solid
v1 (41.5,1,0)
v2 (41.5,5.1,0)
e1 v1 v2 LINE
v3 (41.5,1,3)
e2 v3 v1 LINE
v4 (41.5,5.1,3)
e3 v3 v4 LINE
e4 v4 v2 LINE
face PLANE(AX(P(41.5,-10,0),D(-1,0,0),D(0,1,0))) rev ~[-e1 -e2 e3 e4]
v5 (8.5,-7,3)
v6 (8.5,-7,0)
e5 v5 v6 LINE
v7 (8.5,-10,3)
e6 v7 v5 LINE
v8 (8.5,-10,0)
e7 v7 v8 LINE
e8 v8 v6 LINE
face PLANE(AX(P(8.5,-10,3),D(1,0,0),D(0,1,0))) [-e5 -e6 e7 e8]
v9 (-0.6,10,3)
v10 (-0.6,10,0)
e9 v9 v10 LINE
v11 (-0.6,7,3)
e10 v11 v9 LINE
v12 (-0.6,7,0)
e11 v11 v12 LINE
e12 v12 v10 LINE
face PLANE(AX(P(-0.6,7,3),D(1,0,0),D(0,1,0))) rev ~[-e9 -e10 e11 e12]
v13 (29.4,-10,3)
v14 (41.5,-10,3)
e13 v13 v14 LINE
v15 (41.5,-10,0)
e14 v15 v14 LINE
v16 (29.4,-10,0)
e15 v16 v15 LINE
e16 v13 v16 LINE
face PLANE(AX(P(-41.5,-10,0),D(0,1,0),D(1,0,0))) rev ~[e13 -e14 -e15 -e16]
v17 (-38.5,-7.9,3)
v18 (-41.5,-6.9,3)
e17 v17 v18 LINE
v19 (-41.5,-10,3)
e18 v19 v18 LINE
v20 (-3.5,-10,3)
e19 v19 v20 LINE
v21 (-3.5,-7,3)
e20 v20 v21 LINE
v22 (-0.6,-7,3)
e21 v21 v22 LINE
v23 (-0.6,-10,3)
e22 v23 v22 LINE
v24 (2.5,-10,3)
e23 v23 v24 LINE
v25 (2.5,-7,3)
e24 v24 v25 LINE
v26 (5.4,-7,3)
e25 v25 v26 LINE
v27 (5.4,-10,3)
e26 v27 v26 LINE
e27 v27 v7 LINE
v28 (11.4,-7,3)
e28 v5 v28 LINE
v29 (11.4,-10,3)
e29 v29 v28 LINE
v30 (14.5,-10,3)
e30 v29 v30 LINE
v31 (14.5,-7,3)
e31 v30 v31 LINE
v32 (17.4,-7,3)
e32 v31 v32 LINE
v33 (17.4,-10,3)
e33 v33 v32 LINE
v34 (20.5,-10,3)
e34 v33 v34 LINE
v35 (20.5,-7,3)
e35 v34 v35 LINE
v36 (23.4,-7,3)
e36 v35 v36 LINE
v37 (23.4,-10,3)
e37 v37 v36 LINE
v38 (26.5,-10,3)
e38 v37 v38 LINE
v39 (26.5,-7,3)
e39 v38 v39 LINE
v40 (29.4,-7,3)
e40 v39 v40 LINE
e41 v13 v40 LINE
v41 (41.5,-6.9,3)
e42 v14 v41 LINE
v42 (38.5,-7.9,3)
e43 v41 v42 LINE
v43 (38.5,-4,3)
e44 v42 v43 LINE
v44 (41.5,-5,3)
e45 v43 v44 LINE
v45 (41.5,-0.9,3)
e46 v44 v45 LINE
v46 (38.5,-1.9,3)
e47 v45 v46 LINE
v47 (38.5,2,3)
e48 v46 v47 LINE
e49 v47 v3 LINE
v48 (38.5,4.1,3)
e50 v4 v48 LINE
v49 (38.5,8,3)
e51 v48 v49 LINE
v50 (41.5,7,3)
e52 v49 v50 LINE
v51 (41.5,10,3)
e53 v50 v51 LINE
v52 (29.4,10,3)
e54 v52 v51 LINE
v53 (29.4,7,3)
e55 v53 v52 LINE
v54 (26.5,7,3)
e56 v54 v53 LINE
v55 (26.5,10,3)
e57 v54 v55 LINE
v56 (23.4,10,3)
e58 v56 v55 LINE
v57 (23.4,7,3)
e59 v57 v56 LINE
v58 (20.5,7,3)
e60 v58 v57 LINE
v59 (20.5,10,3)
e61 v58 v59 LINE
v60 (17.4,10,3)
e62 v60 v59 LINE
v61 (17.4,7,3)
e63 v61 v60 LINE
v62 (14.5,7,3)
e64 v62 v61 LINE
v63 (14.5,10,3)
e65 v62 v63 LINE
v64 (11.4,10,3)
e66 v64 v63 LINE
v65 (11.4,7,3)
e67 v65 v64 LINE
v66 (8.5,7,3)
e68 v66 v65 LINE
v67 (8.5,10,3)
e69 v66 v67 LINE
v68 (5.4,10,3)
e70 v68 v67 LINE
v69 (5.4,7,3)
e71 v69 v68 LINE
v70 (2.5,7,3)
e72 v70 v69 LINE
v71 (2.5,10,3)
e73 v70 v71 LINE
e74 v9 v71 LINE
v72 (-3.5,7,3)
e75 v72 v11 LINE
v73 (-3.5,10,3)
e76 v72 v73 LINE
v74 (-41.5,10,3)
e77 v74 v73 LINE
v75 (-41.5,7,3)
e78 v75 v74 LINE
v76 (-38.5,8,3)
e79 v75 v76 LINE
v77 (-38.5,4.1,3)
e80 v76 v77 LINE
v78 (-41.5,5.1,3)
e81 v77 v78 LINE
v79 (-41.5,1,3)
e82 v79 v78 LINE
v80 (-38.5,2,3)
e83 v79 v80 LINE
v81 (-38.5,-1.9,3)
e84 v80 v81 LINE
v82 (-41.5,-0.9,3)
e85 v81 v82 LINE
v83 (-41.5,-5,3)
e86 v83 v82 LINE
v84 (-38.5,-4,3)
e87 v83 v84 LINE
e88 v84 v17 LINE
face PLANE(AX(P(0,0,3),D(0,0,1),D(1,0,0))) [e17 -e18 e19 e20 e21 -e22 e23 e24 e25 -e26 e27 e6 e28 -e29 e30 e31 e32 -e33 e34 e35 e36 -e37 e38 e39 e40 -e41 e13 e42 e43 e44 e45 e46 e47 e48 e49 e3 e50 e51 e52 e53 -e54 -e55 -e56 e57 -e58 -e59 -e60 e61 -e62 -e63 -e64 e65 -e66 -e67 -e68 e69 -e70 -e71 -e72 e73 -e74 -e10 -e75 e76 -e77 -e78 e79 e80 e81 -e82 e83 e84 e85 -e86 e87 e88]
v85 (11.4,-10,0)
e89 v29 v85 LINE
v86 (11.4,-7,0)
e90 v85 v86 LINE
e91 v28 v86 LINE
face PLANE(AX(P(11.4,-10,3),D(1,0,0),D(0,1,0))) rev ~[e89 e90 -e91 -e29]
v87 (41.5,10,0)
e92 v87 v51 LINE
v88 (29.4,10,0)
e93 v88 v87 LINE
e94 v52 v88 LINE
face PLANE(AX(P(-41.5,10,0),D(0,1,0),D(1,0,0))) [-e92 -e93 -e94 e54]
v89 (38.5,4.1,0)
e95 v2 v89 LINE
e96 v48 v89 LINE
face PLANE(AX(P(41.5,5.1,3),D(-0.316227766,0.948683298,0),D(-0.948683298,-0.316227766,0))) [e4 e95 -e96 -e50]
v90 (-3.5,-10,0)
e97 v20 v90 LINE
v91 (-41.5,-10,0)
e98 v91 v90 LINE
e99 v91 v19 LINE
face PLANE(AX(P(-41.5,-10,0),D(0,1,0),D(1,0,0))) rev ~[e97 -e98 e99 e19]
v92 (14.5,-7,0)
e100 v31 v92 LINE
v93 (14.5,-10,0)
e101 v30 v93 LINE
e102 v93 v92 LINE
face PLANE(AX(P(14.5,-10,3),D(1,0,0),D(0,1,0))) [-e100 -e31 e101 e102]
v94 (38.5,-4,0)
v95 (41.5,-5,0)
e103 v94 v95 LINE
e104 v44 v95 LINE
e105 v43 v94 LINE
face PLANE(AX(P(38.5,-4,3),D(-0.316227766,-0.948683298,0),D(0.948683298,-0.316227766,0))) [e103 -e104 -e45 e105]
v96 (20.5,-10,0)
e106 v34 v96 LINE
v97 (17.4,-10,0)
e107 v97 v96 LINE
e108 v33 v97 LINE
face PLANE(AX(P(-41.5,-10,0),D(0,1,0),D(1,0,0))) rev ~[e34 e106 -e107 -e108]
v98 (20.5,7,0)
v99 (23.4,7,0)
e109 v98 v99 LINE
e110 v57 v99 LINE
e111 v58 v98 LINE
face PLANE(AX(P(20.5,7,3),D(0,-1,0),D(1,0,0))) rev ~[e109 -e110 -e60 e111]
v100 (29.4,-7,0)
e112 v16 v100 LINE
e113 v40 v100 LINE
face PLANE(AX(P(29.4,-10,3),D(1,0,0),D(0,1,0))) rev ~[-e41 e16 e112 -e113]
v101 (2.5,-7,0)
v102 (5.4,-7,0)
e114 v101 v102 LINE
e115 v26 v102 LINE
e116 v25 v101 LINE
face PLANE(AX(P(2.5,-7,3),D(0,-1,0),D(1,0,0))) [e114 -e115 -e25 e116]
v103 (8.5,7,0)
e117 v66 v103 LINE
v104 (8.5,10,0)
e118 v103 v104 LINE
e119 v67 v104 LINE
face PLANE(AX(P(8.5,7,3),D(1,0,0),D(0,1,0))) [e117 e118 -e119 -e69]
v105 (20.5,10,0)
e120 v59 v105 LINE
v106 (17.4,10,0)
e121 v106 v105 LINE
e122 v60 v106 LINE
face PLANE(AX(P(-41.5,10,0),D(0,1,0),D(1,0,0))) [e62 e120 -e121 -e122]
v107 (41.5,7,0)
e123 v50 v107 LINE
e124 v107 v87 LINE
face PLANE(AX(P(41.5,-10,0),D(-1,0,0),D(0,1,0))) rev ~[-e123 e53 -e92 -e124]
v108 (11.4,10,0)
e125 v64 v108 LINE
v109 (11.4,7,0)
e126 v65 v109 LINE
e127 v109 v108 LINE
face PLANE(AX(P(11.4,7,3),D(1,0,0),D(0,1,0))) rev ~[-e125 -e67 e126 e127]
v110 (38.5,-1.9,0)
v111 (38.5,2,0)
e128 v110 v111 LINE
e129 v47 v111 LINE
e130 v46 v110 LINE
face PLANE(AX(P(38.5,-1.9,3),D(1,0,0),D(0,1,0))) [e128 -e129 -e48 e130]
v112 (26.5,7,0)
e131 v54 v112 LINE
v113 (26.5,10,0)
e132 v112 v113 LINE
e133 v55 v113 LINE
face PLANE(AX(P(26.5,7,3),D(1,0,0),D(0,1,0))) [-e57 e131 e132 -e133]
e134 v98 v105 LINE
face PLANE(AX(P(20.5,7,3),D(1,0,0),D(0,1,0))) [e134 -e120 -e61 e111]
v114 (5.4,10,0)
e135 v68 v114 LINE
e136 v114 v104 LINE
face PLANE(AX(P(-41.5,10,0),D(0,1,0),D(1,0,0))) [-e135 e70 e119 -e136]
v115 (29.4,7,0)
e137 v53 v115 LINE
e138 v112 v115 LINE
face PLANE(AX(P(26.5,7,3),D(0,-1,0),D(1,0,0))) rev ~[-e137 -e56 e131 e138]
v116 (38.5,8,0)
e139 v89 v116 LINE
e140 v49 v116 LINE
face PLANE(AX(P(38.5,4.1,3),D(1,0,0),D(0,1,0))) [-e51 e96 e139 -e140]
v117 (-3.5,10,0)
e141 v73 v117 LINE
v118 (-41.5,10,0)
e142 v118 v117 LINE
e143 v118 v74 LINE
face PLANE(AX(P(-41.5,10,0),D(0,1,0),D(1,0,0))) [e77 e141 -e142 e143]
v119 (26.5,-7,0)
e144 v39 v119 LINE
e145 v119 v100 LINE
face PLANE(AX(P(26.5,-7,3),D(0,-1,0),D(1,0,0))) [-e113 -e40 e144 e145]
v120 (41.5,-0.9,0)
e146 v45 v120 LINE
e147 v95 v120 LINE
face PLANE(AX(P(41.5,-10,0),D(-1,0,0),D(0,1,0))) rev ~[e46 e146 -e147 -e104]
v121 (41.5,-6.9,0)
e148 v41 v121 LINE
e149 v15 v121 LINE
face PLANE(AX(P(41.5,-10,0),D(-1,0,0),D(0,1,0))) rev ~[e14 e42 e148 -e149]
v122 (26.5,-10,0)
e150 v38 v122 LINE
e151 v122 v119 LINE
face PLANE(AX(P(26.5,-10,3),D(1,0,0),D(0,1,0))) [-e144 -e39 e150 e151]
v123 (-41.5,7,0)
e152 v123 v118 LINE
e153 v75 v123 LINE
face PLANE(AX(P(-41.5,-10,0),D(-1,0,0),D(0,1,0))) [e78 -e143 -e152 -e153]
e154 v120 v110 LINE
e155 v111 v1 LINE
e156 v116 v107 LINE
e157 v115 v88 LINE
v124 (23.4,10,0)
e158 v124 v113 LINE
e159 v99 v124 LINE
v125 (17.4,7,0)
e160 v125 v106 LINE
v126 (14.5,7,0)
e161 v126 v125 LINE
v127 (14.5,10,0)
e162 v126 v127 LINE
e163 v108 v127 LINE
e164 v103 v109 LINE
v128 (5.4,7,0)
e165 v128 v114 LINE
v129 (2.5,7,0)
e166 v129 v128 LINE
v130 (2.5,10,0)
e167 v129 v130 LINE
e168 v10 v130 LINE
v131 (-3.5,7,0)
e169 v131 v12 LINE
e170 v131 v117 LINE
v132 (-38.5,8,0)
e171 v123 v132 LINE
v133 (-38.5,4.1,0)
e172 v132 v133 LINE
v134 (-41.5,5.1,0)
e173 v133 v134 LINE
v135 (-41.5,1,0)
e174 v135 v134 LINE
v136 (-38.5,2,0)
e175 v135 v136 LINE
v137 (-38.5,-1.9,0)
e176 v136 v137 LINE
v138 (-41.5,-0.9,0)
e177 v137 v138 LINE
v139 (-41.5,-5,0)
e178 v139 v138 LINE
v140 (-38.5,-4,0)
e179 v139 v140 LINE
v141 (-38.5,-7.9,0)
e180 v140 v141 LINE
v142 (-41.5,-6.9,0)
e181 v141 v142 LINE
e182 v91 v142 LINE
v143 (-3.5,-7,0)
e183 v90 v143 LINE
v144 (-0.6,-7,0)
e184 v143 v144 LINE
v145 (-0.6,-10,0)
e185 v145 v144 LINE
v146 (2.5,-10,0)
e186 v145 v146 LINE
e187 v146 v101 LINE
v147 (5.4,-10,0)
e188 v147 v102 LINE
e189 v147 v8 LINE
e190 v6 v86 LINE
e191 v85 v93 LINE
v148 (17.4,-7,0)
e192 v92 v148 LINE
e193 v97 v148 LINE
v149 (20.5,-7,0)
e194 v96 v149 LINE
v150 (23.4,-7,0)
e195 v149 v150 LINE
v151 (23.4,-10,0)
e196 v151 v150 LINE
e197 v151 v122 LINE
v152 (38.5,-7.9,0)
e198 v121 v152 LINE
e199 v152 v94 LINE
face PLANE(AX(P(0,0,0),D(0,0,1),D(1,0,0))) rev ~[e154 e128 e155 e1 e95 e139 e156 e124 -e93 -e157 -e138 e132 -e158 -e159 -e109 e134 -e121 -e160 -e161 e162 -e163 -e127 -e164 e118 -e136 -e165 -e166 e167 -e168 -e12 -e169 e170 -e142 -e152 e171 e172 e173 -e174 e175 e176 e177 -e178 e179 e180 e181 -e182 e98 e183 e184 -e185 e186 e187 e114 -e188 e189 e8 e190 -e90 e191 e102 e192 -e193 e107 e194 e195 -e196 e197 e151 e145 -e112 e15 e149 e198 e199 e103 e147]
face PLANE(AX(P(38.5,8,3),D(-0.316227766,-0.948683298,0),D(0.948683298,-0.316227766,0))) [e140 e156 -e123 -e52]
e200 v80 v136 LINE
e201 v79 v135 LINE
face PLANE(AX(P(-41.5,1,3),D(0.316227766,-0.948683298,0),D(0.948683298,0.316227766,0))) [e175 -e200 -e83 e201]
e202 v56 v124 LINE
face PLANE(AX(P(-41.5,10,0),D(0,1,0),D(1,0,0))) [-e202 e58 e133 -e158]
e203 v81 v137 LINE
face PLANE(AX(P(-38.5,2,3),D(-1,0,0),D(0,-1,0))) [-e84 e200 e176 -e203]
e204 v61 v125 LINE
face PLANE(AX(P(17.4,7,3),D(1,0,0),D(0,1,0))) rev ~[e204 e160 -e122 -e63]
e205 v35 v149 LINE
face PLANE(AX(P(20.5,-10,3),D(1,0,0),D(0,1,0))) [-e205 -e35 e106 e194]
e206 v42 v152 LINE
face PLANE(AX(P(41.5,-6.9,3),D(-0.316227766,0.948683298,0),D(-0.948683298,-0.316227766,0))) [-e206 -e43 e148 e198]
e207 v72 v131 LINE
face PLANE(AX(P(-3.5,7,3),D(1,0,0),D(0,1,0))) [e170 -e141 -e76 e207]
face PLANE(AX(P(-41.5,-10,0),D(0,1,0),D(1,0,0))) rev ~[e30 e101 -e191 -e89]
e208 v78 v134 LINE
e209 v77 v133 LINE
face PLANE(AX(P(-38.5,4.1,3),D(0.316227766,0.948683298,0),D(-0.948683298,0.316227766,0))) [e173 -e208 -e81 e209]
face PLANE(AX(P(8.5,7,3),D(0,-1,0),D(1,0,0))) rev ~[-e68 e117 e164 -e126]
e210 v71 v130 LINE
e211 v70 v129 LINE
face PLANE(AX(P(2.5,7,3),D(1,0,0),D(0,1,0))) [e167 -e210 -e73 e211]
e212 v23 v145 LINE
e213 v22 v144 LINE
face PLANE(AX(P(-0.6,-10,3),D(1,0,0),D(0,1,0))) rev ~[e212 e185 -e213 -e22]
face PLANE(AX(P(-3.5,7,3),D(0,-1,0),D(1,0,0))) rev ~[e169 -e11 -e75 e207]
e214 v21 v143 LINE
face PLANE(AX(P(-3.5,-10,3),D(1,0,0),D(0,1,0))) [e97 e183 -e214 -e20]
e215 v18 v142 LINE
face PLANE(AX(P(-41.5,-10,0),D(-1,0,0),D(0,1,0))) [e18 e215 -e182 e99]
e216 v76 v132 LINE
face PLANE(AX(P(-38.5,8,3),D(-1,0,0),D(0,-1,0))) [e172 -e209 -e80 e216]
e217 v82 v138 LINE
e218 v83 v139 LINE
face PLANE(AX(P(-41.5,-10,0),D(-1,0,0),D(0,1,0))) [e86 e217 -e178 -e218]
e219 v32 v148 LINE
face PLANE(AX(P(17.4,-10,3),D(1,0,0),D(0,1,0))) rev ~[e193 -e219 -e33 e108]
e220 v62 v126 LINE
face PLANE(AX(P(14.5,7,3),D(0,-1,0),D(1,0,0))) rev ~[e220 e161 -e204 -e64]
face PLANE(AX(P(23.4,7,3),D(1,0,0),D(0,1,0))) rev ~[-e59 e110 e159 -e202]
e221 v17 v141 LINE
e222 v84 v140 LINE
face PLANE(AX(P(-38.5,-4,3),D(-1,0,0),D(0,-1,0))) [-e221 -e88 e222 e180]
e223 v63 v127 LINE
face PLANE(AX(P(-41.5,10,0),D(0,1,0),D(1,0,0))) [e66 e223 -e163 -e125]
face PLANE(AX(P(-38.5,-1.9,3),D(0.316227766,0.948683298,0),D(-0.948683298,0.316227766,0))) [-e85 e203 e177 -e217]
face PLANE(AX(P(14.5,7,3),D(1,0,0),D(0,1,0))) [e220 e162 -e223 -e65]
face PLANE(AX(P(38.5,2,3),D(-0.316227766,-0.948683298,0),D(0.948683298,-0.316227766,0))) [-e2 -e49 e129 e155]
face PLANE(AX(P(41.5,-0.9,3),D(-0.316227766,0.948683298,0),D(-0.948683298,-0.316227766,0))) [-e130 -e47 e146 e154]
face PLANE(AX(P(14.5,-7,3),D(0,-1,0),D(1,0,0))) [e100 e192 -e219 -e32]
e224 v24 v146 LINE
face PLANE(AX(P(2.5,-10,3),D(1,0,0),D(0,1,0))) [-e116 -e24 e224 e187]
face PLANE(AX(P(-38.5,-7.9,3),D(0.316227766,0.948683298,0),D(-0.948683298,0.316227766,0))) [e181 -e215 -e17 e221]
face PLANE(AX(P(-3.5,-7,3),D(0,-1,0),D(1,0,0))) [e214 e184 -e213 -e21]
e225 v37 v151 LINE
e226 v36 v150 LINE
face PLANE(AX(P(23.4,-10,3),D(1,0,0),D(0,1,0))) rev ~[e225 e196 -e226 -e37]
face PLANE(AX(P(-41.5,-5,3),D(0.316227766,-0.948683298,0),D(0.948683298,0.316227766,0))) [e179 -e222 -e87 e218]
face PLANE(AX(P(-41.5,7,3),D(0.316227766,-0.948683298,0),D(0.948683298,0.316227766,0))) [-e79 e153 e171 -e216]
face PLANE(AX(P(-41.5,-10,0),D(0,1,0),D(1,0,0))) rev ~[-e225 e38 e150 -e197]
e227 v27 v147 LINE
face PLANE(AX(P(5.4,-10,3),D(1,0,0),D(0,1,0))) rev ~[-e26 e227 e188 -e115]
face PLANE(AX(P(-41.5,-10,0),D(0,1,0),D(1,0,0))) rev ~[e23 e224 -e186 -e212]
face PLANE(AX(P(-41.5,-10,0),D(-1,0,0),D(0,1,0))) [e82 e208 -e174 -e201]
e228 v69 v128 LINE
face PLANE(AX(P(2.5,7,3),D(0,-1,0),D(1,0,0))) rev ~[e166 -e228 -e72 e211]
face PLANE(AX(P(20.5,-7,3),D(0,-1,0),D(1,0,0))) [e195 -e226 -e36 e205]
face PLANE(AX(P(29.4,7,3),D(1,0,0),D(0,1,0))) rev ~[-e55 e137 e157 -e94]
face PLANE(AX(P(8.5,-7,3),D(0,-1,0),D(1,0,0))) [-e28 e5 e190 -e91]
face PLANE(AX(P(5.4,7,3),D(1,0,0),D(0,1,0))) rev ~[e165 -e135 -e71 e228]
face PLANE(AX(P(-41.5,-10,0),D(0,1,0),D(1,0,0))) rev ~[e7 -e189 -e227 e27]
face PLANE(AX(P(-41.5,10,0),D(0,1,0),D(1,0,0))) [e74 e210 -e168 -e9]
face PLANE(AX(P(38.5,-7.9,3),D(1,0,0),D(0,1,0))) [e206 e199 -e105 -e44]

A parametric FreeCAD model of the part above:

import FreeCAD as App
import Part
import Sketcher

V = App.Vector
Q = App.Units.Quantity


def add_polygon(sketch, points):
    """Adds a closed chain of lines whose ends are joined by coincident constraints."""
    first, n = sketch.GeometryCount, len(points)
    for a, b in zip(points, points[1:] + points[:1]):
        sketch.addGeometry(Part.LineSegment(App.Vector(*a, 0), App.Vector(*b, 0)), False)
    for i in range(n):
        sketch.addConstraint(Sketcher.Constraint("Coincident", first + i, 2, first + (i + 1) % n, 1))

doc = App.newDocument("Part")
body = doc.addObject("PartDesign::Body", "Body")

sketch1 = body.newObject("Sketcher::SketchObject", "Sketch")
sketch1.AttachmentSupport = (doc.getObject("XY_Plane"), [""])
sketch1.MapMode = "FlatFace"
add_polygon(sketch1, [(-41.5, 10), (-41.5, -10), (41.5, -10), (41.5, 10)])
sketch1.addConstraint([
    Sketcher.Constraint("Vertical", 0),
    Sketcher.Constraint("Horizontal", 1),
    Sketcher.Constraint("Vertical", 2),
    Sketcher.Constraint("Horizontal", 3),
    Sketcher.Constraint("Symmetric", 0, 2, 2, 2, -1, 1),
    Sketcher.Constraint("DistanceX", 1, 1, 1, 2, Q("83 mm")),
    Sketcher.Constraint("DistanceY", 0, 2, 0, 1, Q("20 mm")),
])
pad1 = body.newObject("PartDesign::Pad", "Pad")
pad1.Profile = sketch1
pad1.Length = 3

sketch2 = body.newObject("Sketcher::SketchObject", "Sketch001")
sketch2.AttachmentSupport = (doc.getObject("XY_Plane"), [""])
sketch2.MapMode = "FlatFace"
sketch2.AttachmentOffset = App.Placement(V(0, 0, 3), App.Rotation())
add_polygon(sketch2, [(-3.5, 10), (-3.5, 7), (-0.6, 7), (-0.6, 10)])
add_polygon(sketch2, [(-3.5, -7), (-3.5, -10), (-0.6, -10), (-0.6, -7)])
sketch2.addConstraint([
    Sketcher.Constraint("Vertical", 0),
    Sketcher.Constraint("Horizontal", 1),
    Sketcher.Constraint("Vertical", 2),
    Sketcher.Constraint("Horizontal", 3),
    Sketcher.Constraint("Vertical", 4),
    Sketcher.Constraint("Horizontal", 5),
    Sketcher.Constraint("Vertical", 6),
    Sketcher.Constraint("Horizontal", 7),
    Sketcher.Constraint("Symmetric", 3, 2, 4, 2, -1),
    Sketcher.Constraint("Symmetric", 1, 2, 6, 2, -1),
    Sketcher.Constraint("DistanceY", 0, 2, 0, 1, Q("3 mm")),
    Sketcher.Constraint("DistanceX", 1, 1, 1, 2, Q("2.9 mm")),
    Sketcher.Constraint("DistanceY", -1, 1, 0, 2, Q("7 mm")),
    Sketcher.Constraint("DistanceX", 0, 2, -1, 1, Q("3.5 mm")),
])
pocket1 = body.newObject("PartDesign::Pocket", "Pocket")
pocket1.Profile = sketch2
pocket1.Length = 5
doc.recompute()

linearpattern = body.newObject("PartDesign::LinearPattern", "LinearPattern")
linearpattern.Originals = [pocket1]
linearpattern.Direction = (doc.getObject("X_Axis"), [""])
linearpattern.Mode = "offset"
linearpattern.Offset = 6
linearpattern.Occurrences = 6
body.Tip = linearpattern

sketch3 = body.newObject("Sketcher::SketchObject", "Sketch002")
sketch3.AttachmentSupport = (doc.getObject("XY_Plane"), [""])
sketch3.MapMode = "FlatFace"
sketch3.AttachmentOffset = App.Placement(V(0, 0, 3), App.Rotation())
add_polygon(sketch3, [(-38.5, 8), (-41.5, 7), (-41.5, 5.1), (-38.5, 4.1)])
add_polygon(sketch3, [(41.5, 7), (38.5, 8), (38.5, 4.1), (41.5, 5.1)])
sketch3.addConstraint([
    Sketcher.Constraint("Vertical", 1),
    Sketcher.Constraint("Vertical", 3),
    Sketcher.Constraint("Vertical", 5),
    Sketcher.Constraint("Vertical", 7),
    Sketcher.Constraint("Symmetric", 3, 2, 4, 2, -2),
    Sketcher.Constraint("Symmetric", 1, 2, 6, 2, -2),
    Sketcher.Constraint("Parallel", 2, 4),
    Sketcher.Constraint("Parallel", 0, 6),
    Sketcher.Constraint("Horizontal", 2, 2, 5, 2),
    Sketcher.Constraint("DistanceY", 1, 2, 1, 1, Q("1.9 mm")),
    Sketcher.Constraint("DistanceY", 3, 1, 3, 2, Q("3.9 mm")),
    Sketcher.Constraint("DistanceY", -1, 1, 0, 2, Q("7 mm")),
    Sketcher.Constraint("DistanceX", 1, 2, 2, 2, Q("3 mm")),
    Sketcher.Constraint("DistanceX", 3, 2, 4, 2, Q("77 mm")),
])
pocket2 = body.newObject("PartDesign::Pocket", "Pocket001")
pocket2.Profile = sketch3
pocket2.Length = 5
doc.recompute()

linearpattern2 = body.newObject("PartDesign::LinearPattern", "LinearPattern001")
linearpattern2.Originals = [pocket2]
linearpattern2.Direction = (doc.getObject("Y_Axis"), [""])
linearpattern2.Mode = "offset"
linearpattern2.Offset = 6
linearpattern2.Occurrences = 3
linearpattern2.Reversed = True
body.Tip = linearpattern2

doc.recompute()
